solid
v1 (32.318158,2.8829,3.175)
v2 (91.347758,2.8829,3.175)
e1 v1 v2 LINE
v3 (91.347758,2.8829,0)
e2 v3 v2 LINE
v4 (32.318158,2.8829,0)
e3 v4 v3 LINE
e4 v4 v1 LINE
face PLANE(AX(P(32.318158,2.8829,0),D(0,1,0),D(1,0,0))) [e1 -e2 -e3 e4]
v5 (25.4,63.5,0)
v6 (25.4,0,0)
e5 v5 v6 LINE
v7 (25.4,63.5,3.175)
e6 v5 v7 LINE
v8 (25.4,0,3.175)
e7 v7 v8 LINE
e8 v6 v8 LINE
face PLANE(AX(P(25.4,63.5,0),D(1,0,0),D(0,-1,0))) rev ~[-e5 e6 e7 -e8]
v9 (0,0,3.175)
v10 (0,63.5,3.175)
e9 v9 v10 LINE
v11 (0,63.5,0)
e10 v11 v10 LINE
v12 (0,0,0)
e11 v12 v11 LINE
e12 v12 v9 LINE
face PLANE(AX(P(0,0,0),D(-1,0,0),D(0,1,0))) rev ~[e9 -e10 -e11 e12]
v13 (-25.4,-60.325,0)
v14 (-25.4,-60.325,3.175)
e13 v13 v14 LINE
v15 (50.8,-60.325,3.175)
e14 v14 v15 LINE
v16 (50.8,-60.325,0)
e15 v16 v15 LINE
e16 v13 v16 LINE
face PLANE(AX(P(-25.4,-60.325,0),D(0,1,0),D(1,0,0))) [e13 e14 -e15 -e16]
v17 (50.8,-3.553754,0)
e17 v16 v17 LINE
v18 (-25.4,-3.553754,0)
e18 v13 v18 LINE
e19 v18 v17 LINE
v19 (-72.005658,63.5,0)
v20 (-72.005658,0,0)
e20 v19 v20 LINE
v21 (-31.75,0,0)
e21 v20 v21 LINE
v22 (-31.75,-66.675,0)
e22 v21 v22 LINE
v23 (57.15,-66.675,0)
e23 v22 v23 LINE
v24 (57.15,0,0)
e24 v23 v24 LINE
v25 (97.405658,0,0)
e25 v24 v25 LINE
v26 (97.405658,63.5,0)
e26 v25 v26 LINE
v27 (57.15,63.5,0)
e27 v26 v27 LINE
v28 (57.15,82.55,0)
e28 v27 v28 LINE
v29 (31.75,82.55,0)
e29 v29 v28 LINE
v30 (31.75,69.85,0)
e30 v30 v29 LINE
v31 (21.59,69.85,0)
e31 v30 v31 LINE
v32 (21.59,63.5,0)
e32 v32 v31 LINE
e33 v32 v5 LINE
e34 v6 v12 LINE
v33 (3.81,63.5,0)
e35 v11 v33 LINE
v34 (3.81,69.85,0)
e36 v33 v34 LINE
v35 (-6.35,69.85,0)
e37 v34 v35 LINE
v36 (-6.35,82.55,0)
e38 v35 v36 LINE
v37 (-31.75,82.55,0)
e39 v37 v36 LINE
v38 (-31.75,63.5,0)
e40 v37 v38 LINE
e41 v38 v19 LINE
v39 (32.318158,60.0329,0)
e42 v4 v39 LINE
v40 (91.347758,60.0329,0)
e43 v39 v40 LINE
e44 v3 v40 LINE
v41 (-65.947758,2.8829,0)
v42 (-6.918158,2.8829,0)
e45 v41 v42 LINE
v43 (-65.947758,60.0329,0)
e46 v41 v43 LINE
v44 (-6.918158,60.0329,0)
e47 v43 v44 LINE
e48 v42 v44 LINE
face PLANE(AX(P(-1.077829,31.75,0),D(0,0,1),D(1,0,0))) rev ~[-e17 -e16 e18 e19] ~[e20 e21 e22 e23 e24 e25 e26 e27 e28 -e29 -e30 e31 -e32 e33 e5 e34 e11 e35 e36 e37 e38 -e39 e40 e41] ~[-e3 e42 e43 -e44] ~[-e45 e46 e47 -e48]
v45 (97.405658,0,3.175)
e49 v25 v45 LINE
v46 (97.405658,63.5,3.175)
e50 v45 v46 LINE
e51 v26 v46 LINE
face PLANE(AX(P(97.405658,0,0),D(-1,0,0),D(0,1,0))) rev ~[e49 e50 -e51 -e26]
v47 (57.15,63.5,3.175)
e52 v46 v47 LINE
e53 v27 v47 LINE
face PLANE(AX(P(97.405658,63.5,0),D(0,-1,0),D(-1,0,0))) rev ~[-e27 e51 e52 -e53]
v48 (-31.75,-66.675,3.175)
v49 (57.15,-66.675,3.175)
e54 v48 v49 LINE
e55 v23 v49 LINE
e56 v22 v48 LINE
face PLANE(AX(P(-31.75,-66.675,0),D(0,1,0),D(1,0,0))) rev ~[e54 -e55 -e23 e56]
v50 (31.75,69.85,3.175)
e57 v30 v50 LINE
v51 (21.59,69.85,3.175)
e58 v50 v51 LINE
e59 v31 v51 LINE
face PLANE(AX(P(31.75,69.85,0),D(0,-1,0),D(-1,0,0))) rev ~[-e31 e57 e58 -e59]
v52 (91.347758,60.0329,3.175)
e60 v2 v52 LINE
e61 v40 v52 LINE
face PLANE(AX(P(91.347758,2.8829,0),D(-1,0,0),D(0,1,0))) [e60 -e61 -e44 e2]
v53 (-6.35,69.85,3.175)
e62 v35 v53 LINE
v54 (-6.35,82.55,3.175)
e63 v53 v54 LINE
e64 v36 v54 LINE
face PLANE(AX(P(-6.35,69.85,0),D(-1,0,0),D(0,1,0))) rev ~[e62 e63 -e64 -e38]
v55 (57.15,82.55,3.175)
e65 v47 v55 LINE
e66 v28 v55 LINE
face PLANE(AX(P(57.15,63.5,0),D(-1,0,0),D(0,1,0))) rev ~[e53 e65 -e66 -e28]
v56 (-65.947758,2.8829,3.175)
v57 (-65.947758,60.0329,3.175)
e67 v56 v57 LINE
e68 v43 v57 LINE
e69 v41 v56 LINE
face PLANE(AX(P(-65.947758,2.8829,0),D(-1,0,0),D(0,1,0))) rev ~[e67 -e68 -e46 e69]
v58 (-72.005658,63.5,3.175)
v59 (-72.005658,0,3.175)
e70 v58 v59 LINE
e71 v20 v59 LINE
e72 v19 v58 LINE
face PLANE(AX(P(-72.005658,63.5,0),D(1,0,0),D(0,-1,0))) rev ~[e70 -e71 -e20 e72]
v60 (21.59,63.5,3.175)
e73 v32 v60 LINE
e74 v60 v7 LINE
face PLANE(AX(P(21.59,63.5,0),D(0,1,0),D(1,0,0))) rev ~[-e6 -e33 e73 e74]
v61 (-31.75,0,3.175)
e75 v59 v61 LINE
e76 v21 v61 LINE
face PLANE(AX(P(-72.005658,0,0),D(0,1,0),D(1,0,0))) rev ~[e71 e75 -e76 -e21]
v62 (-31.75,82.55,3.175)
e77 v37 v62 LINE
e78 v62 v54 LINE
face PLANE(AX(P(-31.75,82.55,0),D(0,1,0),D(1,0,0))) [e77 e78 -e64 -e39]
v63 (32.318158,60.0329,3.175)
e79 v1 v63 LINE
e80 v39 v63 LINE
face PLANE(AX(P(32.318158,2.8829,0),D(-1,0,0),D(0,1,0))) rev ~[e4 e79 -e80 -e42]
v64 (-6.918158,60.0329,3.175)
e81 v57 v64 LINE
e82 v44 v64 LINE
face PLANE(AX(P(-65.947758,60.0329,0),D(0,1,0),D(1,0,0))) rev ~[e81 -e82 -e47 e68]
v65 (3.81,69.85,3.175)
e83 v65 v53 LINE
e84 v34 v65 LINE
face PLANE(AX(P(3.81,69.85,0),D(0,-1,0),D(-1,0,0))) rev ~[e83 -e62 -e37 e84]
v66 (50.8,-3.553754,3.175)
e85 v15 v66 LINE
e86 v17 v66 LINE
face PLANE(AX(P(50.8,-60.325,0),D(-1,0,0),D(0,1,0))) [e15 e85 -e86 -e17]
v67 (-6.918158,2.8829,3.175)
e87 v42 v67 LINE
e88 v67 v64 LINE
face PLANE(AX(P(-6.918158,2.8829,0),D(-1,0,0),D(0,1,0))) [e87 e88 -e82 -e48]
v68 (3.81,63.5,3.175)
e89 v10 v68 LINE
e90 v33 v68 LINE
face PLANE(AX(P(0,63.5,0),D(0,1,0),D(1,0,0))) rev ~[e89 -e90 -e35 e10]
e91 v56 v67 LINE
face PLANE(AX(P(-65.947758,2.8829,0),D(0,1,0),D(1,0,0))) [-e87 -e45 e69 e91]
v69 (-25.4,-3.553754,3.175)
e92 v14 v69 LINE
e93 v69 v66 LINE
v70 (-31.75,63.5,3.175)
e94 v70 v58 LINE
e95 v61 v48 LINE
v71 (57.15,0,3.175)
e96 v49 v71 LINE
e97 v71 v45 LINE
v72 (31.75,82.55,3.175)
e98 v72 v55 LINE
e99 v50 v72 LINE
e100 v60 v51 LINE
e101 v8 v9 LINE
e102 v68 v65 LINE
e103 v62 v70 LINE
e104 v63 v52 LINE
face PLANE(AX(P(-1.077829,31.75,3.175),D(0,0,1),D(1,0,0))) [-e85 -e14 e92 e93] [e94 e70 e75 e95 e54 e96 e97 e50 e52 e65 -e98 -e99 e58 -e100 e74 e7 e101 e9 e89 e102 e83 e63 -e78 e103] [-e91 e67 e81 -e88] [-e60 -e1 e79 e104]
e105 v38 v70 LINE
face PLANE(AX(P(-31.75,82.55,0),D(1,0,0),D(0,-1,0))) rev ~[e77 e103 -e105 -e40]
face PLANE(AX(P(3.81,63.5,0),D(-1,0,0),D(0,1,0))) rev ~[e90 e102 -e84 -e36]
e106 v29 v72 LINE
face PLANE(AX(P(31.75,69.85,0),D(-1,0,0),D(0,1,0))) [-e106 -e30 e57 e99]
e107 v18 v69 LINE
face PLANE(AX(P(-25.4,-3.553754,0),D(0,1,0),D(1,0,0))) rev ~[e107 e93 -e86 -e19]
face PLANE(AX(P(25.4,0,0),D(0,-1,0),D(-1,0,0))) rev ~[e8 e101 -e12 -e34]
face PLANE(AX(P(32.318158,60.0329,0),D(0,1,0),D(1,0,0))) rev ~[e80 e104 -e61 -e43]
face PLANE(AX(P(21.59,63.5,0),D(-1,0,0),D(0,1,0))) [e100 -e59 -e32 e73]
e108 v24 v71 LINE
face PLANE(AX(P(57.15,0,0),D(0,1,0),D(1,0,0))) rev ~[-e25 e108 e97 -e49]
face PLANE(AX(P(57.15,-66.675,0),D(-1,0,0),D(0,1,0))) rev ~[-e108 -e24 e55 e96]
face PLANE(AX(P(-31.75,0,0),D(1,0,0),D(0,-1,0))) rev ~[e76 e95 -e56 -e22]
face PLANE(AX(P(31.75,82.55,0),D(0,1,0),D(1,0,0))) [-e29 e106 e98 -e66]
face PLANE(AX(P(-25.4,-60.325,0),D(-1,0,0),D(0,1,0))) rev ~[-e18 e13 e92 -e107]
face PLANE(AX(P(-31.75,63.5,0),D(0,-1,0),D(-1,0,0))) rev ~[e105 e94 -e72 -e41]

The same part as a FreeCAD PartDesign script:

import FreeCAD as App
import Part
import Sketcher
from FreeCAD import Vector
Q = App.Units.Quantity


def add_polygon(sketch, points):
    """Adds a closed chain of lines whose ends are joined by coincident constraints."""
    first, n = sketch.GeometryCount, len(points)
    for a, b in zip(points, points[1:] + points[:1]):
        sketch.addGeometry(Part.LineSegment(App.Vector(*a, 0), App.Vector(*b, 0)), False)
    for i in range(n):
        sketch.addConstraint(Sketcher.Constraint("Coincident", first + i, 2, first + (i + 1) % n, 1))

doc = App.newDocument("Part")
body = doc.addObject("PartDesign::Body", "Body")

# Sketch on XY plane
sketch1 = body.newObject("Sketcher::SketchObject", "Sketch")
sketch1.AttachmentSupport = (doc.getObject("XY_Plane"), [""])
sketch1.MapMode = "FlatFace"
add_polygon(sketch1, [(0, 0), (0, 63.5), (3.8, 63.5), (3.8, 69.8), (-6.3, 69.8), (-6.3, 82.5), (-31.8, 82.5), (-31.8, 63.5), (-72, 63.5), (-72, 0), (-31.8, 0), (-31.8, -66.7), (57.1, -66.7), (57.1, 0), (97.4, 0), (97.4, 63.5), (57.1, 63.5), (57.1, 82.5), (31.8, 82.5), (31.8, 69.8), (21.6, 69.8), (21.6, 63.5), (25.4, 63.5), (25.4, 0)])  # lines 0-23
add_polygon(sketch1, [(50.8, -60.3), (-25.4, -60.3), (-25.4, -3.6), (50.8, -3.6)])  # lines 24-27
add_polygon(sketch1, [(-6.9, 2.9), (-65.9, 2.9), (-65.9, 60), (-6.9, 60)])  # lines 28-31
add_polygon(sketch1, [(91.3, 2.9), (32.3, 2.9), (32.3, 60), (91.3, 60)])  # lines 32-35
sketch1.addConstraint(Sketcher.Constraint("Vertical", 0))
sketch1.addConstraint(Sketcher.Constraint("Horizontal", 1))
sketch1.addConstraint(Sketcher.Constraint("Vertical", 2))
sketch1.addConstraint(Sketcher.Constraint("Horizontal", 3))
sketch1.addConstraint(Sketcher.Constraint("Vertical", 4))
sketch1.addConstraint(Sketcher.Constraint("Horizontal", 5))
sketch1.addConstraint(Sketcher.Constraint("Vertical", 6))
sketch1.addConstraint(Sketcher.Constraint("Horizontal", 7))
sketch1.addConstraint(Sketcher.Constraint("Vertical", 8))
sketch1.addConstraint(Sketcher.Constraint("Horizontal", 9))
sketch1.addConstraint(Sketcher.Constraint("Vertical", 10))
sketch1.addConstraint(Sketcher.Constraint("Horizontal", 11))
sketch1.addConstraint(Sketcher.Constraint("Vertical", 12))
sketch1.addConstraint(Sketcher.Constraint("Horizontal", 13))
sketch1.addConstraint(Sketcher.Constraint("Vertical", 14))
sketch1.addConstraint(Sketcher.Constraint("Horizontal", 15))
sketch1.addConstraint(Sketcher.Constraint("Vertical", 16))
sketch1.addConstraint(Sketcher.Constraint("Horizontal", 17))
sketch1.addConstraint(Sketcher.Constraint("Vertical", 18))
sketch1.addConstraint(Sketcher.Constraint("Horizontal", 19))
sketch1.addConstraint(Sketcher.Constraint("Vertical", 20))
sketch1.addConstraint(Sketcher.Constraint("Horizontal", 21))
sketch1.addConstraint(Sketcher.Constraint("Vertical", 22))
sketch1.addConstraint(Sketcher.Constraint("Horizontal", 23))
sketch1.addConstraint(Sketcher.Constraint("Horizontal", 24))
sketch1.addConstraint(Sketcher.Constraint("Vertical", 25))
sketch1.addConstraint(Sketcher.Constraint("Horizontal", 26))
sketch1.addConstraint(Sketcher.Constraint("Vertical", 27))
sketch1.addConstraint(Sketcher.Constraint("Horizontal", 28))
sketch1.addConstraint(Sketcher.Constraint("Vertical", 29))
sketch1.addConstraint(Sketcher.Constraint("Horizontal", 30))
sketch1.addConstraint(Sketcher.Constraint("Vertical", 31))
sketch1.addConstraint(Sketcher.Constraint("Horizontal", 32))
sketch1.addConstraint(Sketcher.Constraint("Vertical", 33))
sketch1.addConstraint(Sketcher.Constraint("Horizontal", 34))
sketch1.addConstraint(Sketcher.Constraint("Vertical", 35))
sketch1.addConstraint(Sketcher.Constraint("Coincident", 23, 2, -1, 1))
sketch1.addConstraint(Sketcher.Constraint("Symmetric", 5, 2, 17, 2, -2))
sketch1.addConstraint(Sketcher.Constraint("PointOnObject", 8, 2, -1))
sketch1.addConstraint(Sketcher.Constraint("PointOnObject", 12, 2, -1))
sketch1.addConstraint(Sketcher.Constraint("Horizontal", 1, 2, 6, 2))
sketch1.addConstraint(Sketcher.Constraint("Horizontal", 7, 2, 14, 2))
sketch1.addConstraint(Sketcher.Constraint("Horizontal", 3, 2, 18, 2))
sketch1.addConstraint(Sketcher.Constraint("Horizontal", 15, 2, 20, 2))
sketch1.addConstraint(Sketcher.Constraint("Horizontal", 31, 2, 32, 2))
sketch1.addConstraint(Sketcher.Constraint("Horizontal", 30, 2, 33, 2))
sketch1.addConstraint(Sketcher.Constraint("Vertical", 6, 2, 9, 2))
sketch1.addConstraint(Sketcher.Constraint("Vertical", 12, 2, 15, 2))
sketch1.addConstraint(Sketcher.Constraint("Equal", 9, 13))
sketch1.addConstraint(Sketcher.Constraint("Equal", 5, 17))
sketch1.addConstraint(Sketcher.Constraint("Equal", 3, 19))
sketch1.addConstraint(Sketcher.Constraint("Equal", 1, 21))
sketch1.addConstraint(Sketcher.Constraint("Equal", 30, 32))
sketch1.addConstraint(Sketcher.Constraint("DistanceX", 5, 2, 5, 1, Q("1 in")))
sketch1.addConstraint(Sketcher.Constraint("DistanceX", 24, 2, 24, 1, Q("3 in")))
sketch1.addConstraint(Sketcher.Constraint("DistanceX", 3, 2, 3, 1, Q("0.4 in")))
sketch1.addConstraint(Sketcher.Constraint("DistanceX", 11, 1, 11, 2, Q("3.5 in")))
sketch1.addConstraint(Sketcher.Constraint("DistanceY", 0, 1, 0, 2, Q("2.5 in")))
sketch1.addConstraint(Sketcher.Constraint("DistanceY", 4, 1, 4, 2, Q("0.5 in")))
sketch1.addConstraint(Sketcher.Constraint("DistanceX", 24, 2, -1, 1, Q("1 in")))
sketch1.addConstraint(Sketcher.Constraint("DistanceY", 2, 1, 2, 2, Q("0.25 in")))
sketch1.addConstraint(Sketcher.Constraint("DistanceY", 29, 1, 29, 2, Q("2.25 in")))
sketch1.addConstraint(Sketcher.Constraint("DistanceX", 28, 2, 28, 1, Q("2.324 in")))
sketch1.addConstraint(Sketcher.Constraint("DistanceY", 10, 2, 10, 1, Q("2.625 in")))
sketch1.addConstraint(Sketcher.Constraint("DistanceY", 10, 2, 24, 2, Q("0.25 in")))
sketch1.addConstraint(Sketcher.Constraint("DistanceY", -1, 1, 28, 2, Q("0.1135 in")))
sketch1.addConstraint(Sketcher.Constraint("DistanceX", 8, 2, 28, 2, Q("0.2385 in")))
sketch1.addConstraint(Sketcher.Constraint("DistanceX", 34, 2, 14, 2, Q("0.2385 in")))
sketch1.addConstraint(Sketcher.Constraint("DistanceX", 13, 1, 13, 2, Q("40.255658 mm")))
sketch1.addConstraint(Sketcher.Constraint("DistanceY", 25, 1, 25, 2, Q("56.771246 mm")))
pad1 = body.newObject("PartDesign::Pad", "Pad")
pad1.Profile = sketch1
pad1.Length = Q("0.125 in")

doc.recompute()
